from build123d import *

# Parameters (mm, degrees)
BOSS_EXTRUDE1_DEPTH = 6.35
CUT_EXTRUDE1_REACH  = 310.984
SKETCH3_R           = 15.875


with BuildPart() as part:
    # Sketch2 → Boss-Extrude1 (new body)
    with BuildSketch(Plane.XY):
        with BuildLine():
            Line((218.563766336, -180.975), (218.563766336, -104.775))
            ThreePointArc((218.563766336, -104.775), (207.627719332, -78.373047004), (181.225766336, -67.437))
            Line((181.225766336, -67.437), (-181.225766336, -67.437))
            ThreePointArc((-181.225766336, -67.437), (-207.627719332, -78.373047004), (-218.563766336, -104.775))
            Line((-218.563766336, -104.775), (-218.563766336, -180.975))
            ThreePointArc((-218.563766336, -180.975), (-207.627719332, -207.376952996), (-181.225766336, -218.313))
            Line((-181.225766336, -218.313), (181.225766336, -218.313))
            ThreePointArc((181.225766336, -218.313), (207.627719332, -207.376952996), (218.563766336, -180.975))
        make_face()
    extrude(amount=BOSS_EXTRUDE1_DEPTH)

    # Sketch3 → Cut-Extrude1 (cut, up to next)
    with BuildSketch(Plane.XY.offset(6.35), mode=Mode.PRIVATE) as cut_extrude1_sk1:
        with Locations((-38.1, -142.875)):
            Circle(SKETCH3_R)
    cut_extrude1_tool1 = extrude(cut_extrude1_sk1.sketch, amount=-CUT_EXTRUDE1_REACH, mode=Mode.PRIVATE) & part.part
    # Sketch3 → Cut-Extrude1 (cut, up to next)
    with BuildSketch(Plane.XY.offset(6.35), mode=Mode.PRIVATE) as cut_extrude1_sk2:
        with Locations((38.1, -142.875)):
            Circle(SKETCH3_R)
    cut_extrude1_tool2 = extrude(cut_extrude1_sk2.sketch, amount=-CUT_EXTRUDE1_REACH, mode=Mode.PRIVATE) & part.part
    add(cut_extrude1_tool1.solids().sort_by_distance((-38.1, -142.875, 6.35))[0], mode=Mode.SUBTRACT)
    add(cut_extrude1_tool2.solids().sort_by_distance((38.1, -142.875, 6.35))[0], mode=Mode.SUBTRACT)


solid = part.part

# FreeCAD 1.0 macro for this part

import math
import FreeCAD as App
import Part
import Sketcher

V = App.Vector
Q = App.Units.Quantity

doc = App.newDocument("Part")
body = doc.addObject("PartDesign::Body", "Body")

sketch1 = doc.addObject("Sketcher::SketchObject", "Sketch")
body.addObject(sketch1)
sketch1.AttachmentSupport = (doc.XY_Plane, [""])
sketch1.MapMode = "FlatFace"
sketch1.addGeometry([
    Part.LineSegment(V(219, -181, 0), V(219, -105, 0)),
    Part.ArcOfCircle(Part.Circle(V(181, -105, 0), V(0, 0, 1), 37), math.radians(0), math.radians(90)),
    Part.LineSegment(V(181, -67, 0), V(-181, -67, 0)),
    Part.ArcOfCircle(Part.Circle(V(-181, -105, 0), V(0, 0, 1), 37), math.radians(90), math.radians(180)),
    Part.LineSegment(V(-219, -105, 0), V(-219, -181, 0)),
    Part.ArcOfCircle(Part.Circle(V(-181, -181, 0), V(0, 0, 1), 37), math.radians(180), math.radians(270)),
    Part.LineSegment(V(-181, -218, 0), V(181, -218, 0)),
    Part.ArcOfCircle(Part.Circle(V(181, -181, 0), V(0, 0, 1), 37), math.radians(-90), math.radians(0)),
], False)
sketch1.addConstraint([
    Sketcher.Constraint("Tangent", 0, 2, 1, 1),
    Sketcher.Constraint("Tangent", 1, 2, 2, 1),
    Sketcher.Constraint("Tangent", 2, 2, 3, 1),
    Sketcher.Constraint("Tangent", 3, 2, 4, 1),
    Sketcher.Constraint("Tangent", 4, 2, 5, 1),
    Sketcher.Constraint("Tangent", 5, 2, 6, 1),
    Sketcher.Constraint("Tangent", 6, 2, 7, 1),
    Sketcher.Constraint("Tangent", 7, 2, 0, 1),
    Sketcher.Constraint("Vertical", 0),
    Sketcher.Constraint("Horizontal", 2),
    Sketcher.Constraint("Vertical", 4),
    Sketcher.Constraint("Horizontal", 6),
    Sketcher.Constraint("Equal", 1, 3),
    Sketcher.Constraint("Equal", 3, 5),
    Sketcher.Constraint("Equal", 5, 7),
    Sketcher.Constraint("DistanceY", 0, 1, 0, 2, Q("3 in")),
    Sketcher.Constraint("Radius", 1, Q("1.47 in")),
    Sketcher.Constraint("DistanceY", 1, 3, -1, 1, Q("4.125 in")),
    Sketcher.Constraint("DistanceX", 2, 2, 2, 1, 362.451533),
    Sketcher.Constraint("DistanceX", -1, 1, 1, 3, 181.225766),
])
pad1 = doc.addObject("PartDesign::Pad", "Pad")
body.addObject(pad1)
pad1.Profile = sketch1
pad1.Length = Q("0.25 in")

sketch2 = doc.addObject("Sketcher::SketchObject", "Sketch001")
body.addObject(sketch2)
sketch2.AttachmentSupport = (doc.XY_Plane, [""])
sketch2.MapMode = "FlatFace"
sketch2.AttachmentOffset = App.Placement(V(0, 0, 0.25 * 25.4), App.Rotation())
sketch2.addGeometry(Part.Circle(V(-38, -143, 0), V(0, 0, 1), 16), False)
sketch2.addConstraint([
    Sketcher.Constraint("Diameter", 0, Q("1.25 in")),
    Sketcher.Constraint("DistanceX", 0, 3, -1, 1, Q("1.5 in")),
    Sketcher.Constraint("DistanceY", 0, 3, -1, 1, Q("5.625 in")),
])
pocket1 = doc.addObject("PartDesign::Pocket", "Pocket")
body.addObject(pocket1)
pocket1.Profile = sketch2
pocket1.Type = "UpToFirst"

sketch3 = doc.addObject("Sketcher::SketchObject", "Sketch002")
body.addObject(sketch3)
sketch3.AttachmentSupport = (doc.XY_Plane, [""])
sketch3.MapMode = "FlatFace"
sketch3.AttachmentOffset = App.Placement(V(0, 0, 0.25 * 25.4), App.Rotation())
sketch3.addGeometry(Part.Circle(V(38, -143, 0), V(0, 0, 1), 16), False)
sketch3.addConstraint([
    Sketcher.Constraint("Diameter", 0, Q("1.25 in")),
    Sketcher.Constraint("DistanceX", -1, 1, 0, 3, Q("1.5 in")),
    Sketcher.Constraint("DistanceY", 0, 3, -1, 1, Q("5.625 in")),
])
pocket2 = doc.addObject("PartDesign::Pocket", "Pocket001")
body.addObject(pocket2)
pocket2.Profile = sketch3
pocket2.Type = "UpToFirst"

doc.recompute()
